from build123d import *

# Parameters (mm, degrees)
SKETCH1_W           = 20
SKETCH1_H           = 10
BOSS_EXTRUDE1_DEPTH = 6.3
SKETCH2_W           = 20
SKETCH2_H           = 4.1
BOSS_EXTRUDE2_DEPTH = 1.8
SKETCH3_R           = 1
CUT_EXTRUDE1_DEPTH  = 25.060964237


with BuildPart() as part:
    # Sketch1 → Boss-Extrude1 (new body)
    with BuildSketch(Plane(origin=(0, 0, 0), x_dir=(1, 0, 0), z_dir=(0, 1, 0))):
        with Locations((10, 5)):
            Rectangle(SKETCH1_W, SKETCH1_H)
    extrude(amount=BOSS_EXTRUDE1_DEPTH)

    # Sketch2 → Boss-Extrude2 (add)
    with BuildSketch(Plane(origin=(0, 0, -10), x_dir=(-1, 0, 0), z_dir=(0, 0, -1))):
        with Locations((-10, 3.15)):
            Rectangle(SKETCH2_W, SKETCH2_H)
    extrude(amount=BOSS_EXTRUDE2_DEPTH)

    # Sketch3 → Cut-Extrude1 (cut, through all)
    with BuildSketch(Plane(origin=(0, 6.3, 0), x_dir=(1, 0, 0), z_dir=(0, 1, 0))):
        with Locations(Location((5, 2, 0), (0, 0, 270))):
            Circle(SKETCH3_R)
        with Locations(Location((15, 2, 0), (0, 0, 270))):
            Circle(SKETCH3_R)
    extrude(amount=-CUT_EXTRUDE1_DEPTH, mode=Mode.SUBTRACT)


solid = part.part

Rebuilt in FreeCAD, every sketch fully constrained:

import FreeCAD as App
import Part
import Sketcher

V = App.Vector
Q = App.Units.Quantity

doc = App.newDocument("Part")
body = doc.addObject("PartDesign::Body", "Body")

# Sketch on XZ plane
sketch1 = body.newObject("Sketcher::SketchObject", "Sketch")
sketch1.AttachmentSupport = (doc.getObject("XZ_Plane"), [""])
sketch1.MapMode = "FlatFace"
sketch1.addGeometry([
    Part.LineSegment(V(0, -10, 0), V(0, 0, 0)),
    Part.LineSegment(V(0, 0, 0), V(20, 0, 0)),
    Part.LineSegment(V(20, 0, 0), V(20, -10, 0)),
    Part.LineSegment(V(20, -10, 0), V(0, -10, 0)),
], False)
sketch1.addConstraint([
    Sketcher.Constraint("Coincident", 0, 2, 1, 1),
    Sketcher.Constraint("Coincident", 1, 2, 2, 1),
    Sketcher.Constraint("Coincident", 2, 2, 3, 1),
    Sketcher.Constraint("Coincident", 3, 2, 0, 1),
    Sketcher.Constraint("Vertical", 0),
    Sketcher.Constraint("Horizontal", 1),
    Sketcher.Constraint("Vertical", 2),
    Sketcher.Constraint("Horizontal", 3),
    Sketcher.Constraint("Coincident", 0, 2, -1, 1),
    Sketcher.Constraint("DistanceX", 1, 1, 1, 2, Q("20 mm")),
    Sketcher.Constraint("DistanceY", 0, 1, 0, 2, Q("10 mm")),
])
pad1 = body.newObject("PartDesign::Pad", "Pad")
pad1.Profile = sketch1
pad1.Length = 6.3
pad1.Reversed = True

# Sketch on XY plane
sketch2 = body.newObject("Sketcher::SketchObject", "Sketch001")
sketch2.AttachmentSupport = (doc.getObject("XY_Plane"), [""])
sketch2.MapMode = "FlatFace"
sketch2.AttachmentOffset = App.Placement(V(0, 0, -10), App.Rotation())
sketch2.addGeometry([
    Part.LineSegment(V(20, 5.2, 0), V(20, 1.1, 0)),
    Part.LineSegment(V(20, 1.1, 0), V(0, 1.1, 0)),
    Part.LineSegment(V(0, 1.1, 0), V(0, 5.2, 0)),
    Part.LineSegment(V(0, 5.2, 0), V(20, 5.2, 0)),
], False)
sketch2.addConstraint([
    Sketcher.Constraint("Coincident", 0, 2, 1, 1),
    Sketcher.Constraint("Coincident", 1, 2, 2, 1),
    Sketcher.Constraint("Coincident", 2, 2, 3, 1),
    Sketcher.Constraint("Coincident", 3, 2, 0, 1),
    Sketcher.Constraint("Vertical", 0),
    Sketcher.Constraint("Horizontal", 1),
    Sketcher.Constraint("Vertical", 2),
    Sketcher.Constraint("Horizontal", 3),
    Sketcher.Constraint("PointOnObject", 1, 2, -2),
    Sketcher.Constraint("DistanceX", 1, 2, 1, 1, Q("20 mm")),
    Sketcher.Constraint("DistanceY", 0, 2, 0, 1, Q("4.1 mm")),
    Sketcher.Constraint("DistanceY", -1, 1, 0, 2, Q("1.1 mm")),
])
pad2 = body.newObject("PartDesign::Pad", "Pad001")
pad2.Profile = sketch2
pad2.Length = 1.8
pad2.Reversed = True

# Sketch on XZ plane
sketch3 = body.newObject("Sketcher::SketchObject", "Sketch002")
sketch3.AttachmentSupport = (doc.getObject("XZ_Plane"), [""])
sketch3.MapMode = "FlatFace"
sketch3.AttachmentOffset = App.Placement(V(0, 0, -6.3), App.Rotation())
sketch3.addGeometry([
    Part.Circle(V(5, -2, 0), V(0, 0, 1), 1),
    Part.Circle(V(15, -2, 0), V(0, 0, 1), 1),
], False)
sketch3.addConstraint([
    Sketcher.Constraint("Equal", 0, 1),
    Sketcher.Constraint("Horizontal", 0, 3, 1, 3),
    Sketcher.Constraint("Diameter", 0, Q("2 mm")),
    Sketcher.Constraint("DistanceX", -1, 1, 0, 3, Q("5 mm")),
    Sketcher.Constraint("DistanceY", 0, 3, -1, 1, Q("2 mm")),
    Sketcher.Constraint("DistanceX", -1, 1, 1, 3, Q("15 mm")),
])
pocket1 = body.newObject("PartDesign::Pocket", "Pocket")
pocket1.Profile = sketch3
pocket1.Type = "ThroughAll"
pocket1.Reversed = True

doc.recompute()
